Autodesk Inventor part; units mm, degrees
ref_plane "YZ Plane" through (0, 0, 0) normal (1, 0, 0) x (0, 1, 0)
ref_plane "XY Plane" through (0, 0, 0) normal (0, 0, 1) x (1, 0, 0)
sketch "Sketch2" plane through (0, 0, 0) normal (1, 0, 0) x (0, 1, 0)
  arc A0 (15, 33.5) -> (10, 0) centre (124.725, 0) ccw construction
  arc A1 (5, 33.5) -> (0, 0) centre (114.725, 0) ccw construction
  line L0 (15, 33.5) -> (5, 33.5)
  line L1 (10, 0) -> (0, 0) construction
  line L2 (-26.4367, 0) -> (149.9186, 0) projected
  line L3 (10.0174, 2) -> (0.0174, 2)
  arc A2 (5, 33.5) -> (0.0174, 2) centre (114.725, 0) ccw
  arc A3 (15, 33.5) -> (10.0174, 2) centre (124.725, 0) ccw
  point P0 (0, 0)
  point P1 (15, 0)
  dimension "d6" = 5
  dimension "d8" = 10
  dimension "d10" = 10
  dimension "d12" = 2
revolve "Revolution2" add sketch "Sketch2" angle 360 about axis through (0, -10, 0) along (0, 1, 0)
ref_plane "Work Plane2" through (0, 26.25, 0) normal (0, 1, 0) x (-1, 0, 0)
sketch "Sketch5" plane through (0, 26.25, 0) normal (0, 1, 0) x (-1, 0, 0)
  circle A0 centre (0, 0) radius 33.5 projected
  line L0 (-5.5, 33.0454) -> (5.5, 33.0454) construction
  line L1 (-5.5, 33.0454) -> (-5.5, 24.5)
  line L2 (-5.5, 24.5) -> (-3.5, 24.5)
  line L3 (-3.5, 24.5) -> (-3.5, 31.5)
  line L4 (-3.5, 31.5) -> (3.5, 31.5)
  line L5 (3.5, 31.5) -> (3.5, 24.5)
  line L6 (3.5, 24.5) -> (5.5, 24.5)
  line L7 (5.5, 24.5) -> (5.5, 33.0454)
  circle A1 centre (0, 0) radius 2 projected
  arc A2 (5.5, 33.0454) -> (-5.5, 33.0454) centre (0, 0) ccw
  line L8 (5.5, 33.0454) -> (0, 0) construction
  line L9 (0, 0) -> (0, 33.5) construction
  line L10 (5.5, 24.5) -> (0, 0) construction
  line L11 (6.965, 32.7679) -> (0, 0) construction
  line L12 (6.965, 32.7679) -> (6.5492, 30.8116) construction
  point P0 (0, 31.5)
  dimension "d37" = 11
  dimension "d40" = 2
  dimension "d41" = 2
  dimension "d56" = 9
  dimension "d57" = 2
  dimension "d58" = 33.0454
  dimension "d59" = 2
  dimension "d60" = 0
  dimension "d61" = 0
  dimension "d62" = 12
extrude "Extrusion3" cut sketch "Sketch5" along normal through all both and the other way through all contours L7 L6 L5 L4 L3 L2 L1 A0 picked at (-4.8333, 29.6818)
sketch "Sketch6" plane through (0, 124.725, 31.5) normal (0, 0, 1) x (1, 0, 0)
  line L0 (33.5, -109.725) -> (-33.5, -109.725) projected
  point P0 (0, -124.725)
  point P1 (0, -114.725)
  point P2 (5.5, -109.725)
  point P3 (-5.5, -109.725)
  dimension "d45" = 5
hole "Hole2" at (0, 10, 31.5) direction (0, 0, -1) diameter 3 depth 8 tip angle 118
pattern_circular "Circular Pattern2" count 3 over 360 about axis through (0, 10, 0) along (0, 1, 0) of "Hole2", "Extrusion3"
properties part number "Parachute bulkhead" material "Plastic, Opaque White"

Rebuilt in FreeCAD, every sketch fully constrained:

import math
import FreeCAD as App
import Part
import Sketcher
from FreeCAD import Vector
Q = App.Units.Quantity

doc = App.newDocument("Part")
body = doc.addObject("PartDesign::Body", "Body")

sketch1 = body.newObject("Sketcher::SketchObject", "Sketch")
sketch1.AttachmentSupport = (doc.getObject("YZ_Plane"), [""])
sketch1.MapMode = "FlatFace"
sketch1.addGeometry([
    Part.ArcOfCircle(Part.Circle(Vector(125, 0, 0), Vector(0, 0, 1), 115), math.radians(163.02), math.radians(179)),
    Part.LineSegment(Vector(15, 34, 0), Vector(5, 34, 0)),
    Part.ArcOfCircle(Part.Circle(Vector(115, 0, 0), Vector(0, 0, 1), 115), math.radians(163.02), math.radians(179)),
    Part.LineSegment(Vector(0, 2, 0), Vector(10, 2, 0)),
], False)
sketch1.addConstraint([
    Sketcher.Constraint("Coincident", 0, 1, 1, 1),
    Sketcher.Constraint("Coincident", 1, 2, 2, 1),
    Sketcher.Constraint("Coincident", 2, 2, 3, 1),
    Sketcher.Constraint("Coincident", 3, 2, 0, 2),
    Sketcher.Constraint("Horizontal", 1),
    Sketcher.Constraint("Horizontal", 3),
    Sketcher.Constraint("Equal", 0, 2),
    Sketcher.Constraint("Horizontal", 0, 3, 2, 3),
    Sketcher.Constraint("DistanceX", 1, 2, 1, 1, Q("10 mm")),
    Sketcher.Constraint("DistanceX", -1, 1, 1, 2, Q("5 mm")),
    Sketcher.Constraint("DistanceY", -1, 1, 2, 2, Q("2 mm")),
    Sketcher.Constraint("DistanceY", -1, 1, 0, 1, Q("33.5 mm")),
    Sketcher.Constraint("Radius", 0, Q("114.7268 mm")),
    Sketcher.Constraint("DistanceY", 2, 3, 2, 2, Q("2.0004 mm")),
])
revolution = body.newObject("PartDesign::Revolution", "Revolution")
revolution.Profile = sketch1
revolution.ReferenceAxis = (sketch1, ["H_Axis"])
revolution.Angle = 360

sketch2 = body.newObject("Sketcher::SketchObject", "Sketch001")
sketch2.AttachmentSupport = (doc.getObject("XZ_Plane"), [""])
sketch2.MapMode = "FlatFace"
sketch2.AttachmentOffset = App.Placement(Vector(0, 0, -26.25), App.Rotation())
sketch2.addGeometry([
    Part.LineSegment(Vector(-5.5, 24.5, 0), Vector(-5.5, 33, 0)),
    Part.ArcOfCircle(Part.Circle(Vector(0, 0, 0), Vector(0, 0, 1), 33.5), math.radians(80.55), math.radians(99.45)),
    Part.LineSegment(Vector(5.5, 33, 0), Vector(5.5, 24.5, 0)),
    Part.LineSegment(Vector(5.5, 24.5, 0), Vector(3.5, 24.5, 0)),
    Part.LineSegment(Vector(3.5, 24.5, 0), Vector(3.5, 31.5, 0)),
    Part.LineSegment(Vector(3.5, 31.5, 0), Vector(-3.5, 31.5, 0)),
    Part.LineSegment(Vector(-3.5, 31.5, 0), Vector(-3.5, 24.5, 0)),
    Part.LineSegment(Vector(-3.5, 24.5, 0), Vector(-5.5, 24.5, 0)),
], False)
sketch2.addConstraint([
    Sketcher.Constraint("Coincident", 0, 2, 1, 2),
    Sketcher.Constraint("Coincident", 1, 1, 2, 1),
    Sketcher.Constraint("Coincident", 2, 2, 3, 1),
    Sketcher.Constraint("Coincident", 3, 2, 4, 1),
    Sketcher.Constraint("Coincident", 4, 2, 5, 1),
    Sketcher.Constraint("Coincident", 5, 2, 6, 1),
    Sketcher.Constraint("Coincident", 6, 2, 7, 1),
    Sketcher.Constraint("Coincident", 7, 2, 0, 1),
    Sketcher.Constraint("Vertical", 0),
    Sketcher.Constraint("Vertical", 2),
    Sketcher.Constraint("Horizontal", 3),
    Sketcher.Constraint("Vertical", 4),
    Sketcher.Constraint("Horizontal", 5),
    Sketcher.Constraint("Vertical", 6),
    Sketcher.Constraint("Horizontal", 7),
    Sketcher.Constraint("Coincident", 1, 3, -1, 1),
    Sketcher.Constraint("Symmetric", 3, 2, 6, 2, -2),
    Sketcher.Constraint("Horizontal", 0, 2, 1, 1),
    Sketcher.Constraint("Equal", 5, 4),
    Sketcher.Constraint("DistanceX", 3, 2, 3, 1, Q("2 mm")),
    Sketcher.Constraint("DistanceX", 0, 2, 1, 1, Q("11 mm")),
    Sketcher.Constraint("Radius", 1, Q("33.5 mm")),
    Sketcher.Constraint("DistanceY", -1, 1, 2, 2, Q("24.5 mm")),
])
pocket1 = body.newObject("PartDesign::Pocket", "Pocket")
pocket1.Profile = sketch2
pocket1.Type = "ThroughAll"
pocket1.Midplane = True

sketch3 = body.newObject("Sketcher::SketchObject", "Sketch002")
sketch3.AttachmentSupport = (doc.getObject("XY_Plane"), [""])
sketch3.MapMode = "FlatFace"
sketch3.AttachmentOffset = App.Placement(Vector(0, 0, 31.5), App.Rotation())
sketch3.addGeometry(Part.Circle(Vector(0, 10, 0), Vector(0, 0, 1), 1.5), False)
sketch3.addConstraint([
    Sketcher.Constraint("PointOnObject", 0, 3, -2),
    Sketcher.Constraint("Diameter", 0, Q("3 mm")),
    Sketcher.Constraint("DistanceY", -1, 1, 0, 3, Q("10 mm")),
])
doc.recompute()
hole = body.newObject("PartDesign::Hole", "Hole")
hole.Profile = sketch3
hole.ThreadType = "None"
hole.Diameter = 3
hole.DepthType = "Dimension"
hole.Depth = 8
hole.DrillPoint = "Angled"
hole.DrillPointAngle = 118
doc.recompute()

polarpattern = body.newObject("PartDesign::PolarPattern", "PolarPattern")
polarpattern.Originals = [hole, pocket1]
polarpattern.Axis = (doc.getObject("Y_Axis"), [""])
polarpattern.Angle = 360
polarpattern.Occurrences = 3
body.Tip = polarpattern

doc.recompute()
